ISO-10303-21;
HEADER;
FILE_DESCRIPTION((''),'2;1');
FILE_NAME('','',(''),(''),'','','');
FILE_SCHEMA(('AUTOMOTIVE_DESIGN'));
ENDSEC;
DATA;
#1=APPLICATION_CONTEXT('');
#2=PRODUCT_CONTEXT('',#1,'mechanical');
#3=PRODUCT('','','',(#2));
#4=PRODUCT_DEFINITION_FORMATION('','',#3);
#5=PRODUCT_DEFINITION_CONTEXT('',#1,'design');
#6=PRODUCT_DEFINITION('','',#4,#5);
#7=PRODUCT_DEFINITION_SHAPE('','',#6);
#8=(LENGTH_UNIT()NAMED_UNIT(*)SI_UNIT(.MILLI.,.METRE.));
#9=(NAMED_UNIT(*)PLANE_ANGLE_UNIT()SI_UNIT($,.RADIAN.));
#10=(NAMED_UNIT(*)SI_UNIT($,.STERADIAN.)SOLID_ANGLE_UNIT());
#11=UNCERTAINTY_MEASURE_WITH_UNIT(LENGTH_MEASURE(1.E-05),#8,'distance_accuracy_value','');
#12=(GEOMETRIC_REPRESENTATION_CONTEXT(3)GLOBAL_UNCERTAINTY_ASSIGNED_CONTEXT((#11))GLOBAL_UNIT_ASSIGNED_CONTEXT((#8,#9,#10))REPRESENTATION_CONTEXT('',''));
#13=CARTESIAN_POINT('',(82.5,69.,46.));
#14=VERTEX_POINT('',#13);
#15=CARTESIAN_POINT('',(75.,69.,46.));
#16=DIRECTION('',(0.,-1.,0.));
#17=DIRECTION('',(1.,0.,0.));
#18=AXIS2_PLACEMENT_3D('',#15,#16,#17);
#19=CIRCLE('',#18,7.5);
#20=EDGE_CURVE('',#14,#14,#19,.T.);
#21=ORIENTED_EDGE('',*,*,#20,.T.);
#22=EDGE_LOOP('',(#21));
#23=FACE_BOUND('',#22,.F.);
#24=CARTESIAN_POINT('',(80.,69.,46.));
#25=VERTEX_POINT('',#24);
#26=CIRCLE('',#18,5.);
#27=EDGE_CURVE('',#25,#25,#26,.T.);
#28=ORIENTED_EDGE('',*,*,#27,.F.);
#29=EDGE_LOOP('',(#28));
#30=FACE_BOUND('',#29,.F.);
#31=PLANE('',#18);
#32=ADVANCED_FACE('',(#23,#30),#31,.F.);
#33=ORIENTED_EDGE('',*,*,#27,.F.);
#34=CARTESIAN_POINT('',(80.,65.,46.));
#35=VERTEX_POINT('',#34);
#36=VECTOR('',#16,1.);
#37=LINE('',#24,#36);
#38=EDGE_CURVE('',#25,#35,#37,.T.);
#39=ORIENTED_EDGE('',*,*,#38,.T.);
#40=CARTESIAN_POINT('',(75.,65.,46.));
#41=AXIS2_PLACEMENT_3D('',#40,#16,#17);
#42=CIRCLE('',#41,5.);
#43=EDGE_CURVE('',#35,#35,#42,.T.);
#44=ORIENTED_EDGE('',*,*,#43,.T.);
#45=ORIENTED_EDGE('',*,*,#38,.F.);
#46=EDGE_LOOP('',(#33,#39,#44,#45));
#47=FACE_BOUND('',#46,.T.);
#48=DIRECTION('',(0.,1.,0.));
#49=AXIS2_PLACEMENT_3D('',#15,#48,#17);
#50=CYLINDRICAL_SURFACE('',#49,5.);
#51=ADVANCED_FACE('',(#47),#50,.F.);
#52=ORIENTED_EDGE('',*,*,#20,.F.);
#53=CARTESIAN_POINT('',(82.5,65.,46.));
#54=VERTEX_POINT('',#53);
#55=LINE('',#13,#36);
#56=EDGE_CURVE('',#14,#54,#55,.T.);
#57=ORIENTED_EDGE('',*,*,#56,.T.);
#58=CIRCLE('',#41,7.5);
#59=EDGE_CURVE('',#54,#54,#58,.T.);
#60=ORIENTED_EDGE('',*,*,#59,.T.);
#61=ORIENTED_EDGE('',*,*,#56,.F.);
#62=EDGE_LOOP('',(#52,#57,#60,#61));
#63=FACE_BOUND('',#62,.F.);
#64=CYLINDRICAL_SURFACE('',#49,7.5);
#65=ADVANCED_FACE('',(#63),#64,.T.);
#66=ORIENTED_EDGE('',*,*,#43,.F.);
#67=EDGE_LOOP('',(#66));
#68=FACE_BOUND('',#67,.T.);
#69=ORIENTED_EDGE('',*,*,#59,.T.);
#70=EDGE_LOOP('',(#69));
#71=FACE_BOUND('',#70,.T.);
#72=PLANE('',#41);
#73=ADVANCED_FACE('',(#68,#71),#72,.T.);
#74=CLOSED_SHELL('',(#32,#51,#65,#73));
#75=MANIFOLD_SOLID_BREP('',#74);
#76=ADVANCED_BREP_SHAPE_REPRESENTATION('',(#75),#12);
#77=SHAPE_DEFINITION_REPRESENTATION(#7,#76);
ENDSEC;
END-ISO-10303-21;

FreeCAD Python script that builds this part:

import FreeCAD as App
import Part
import Sketcher

V = App.Vector

doc = App.newDocument("Part")
body = doc.addObject("PartDesign::Body", "Body")

sketch1 = body.newObject("Sketcher::SketchObject", "Sketch")
sketch1.AttachmentSupport = (doc.getObject("XZ_Plane"), [""])
sketch1.MapMode = "FlatFace"
sketch1.AttachmentOffset = App.Placement(V(0, 0, -69), App.Rotation())
sketch1.addGeometry(Part.Circle(V(75, 46, 0), V(0, 0, 1), 5), False)
sketch1.addConstraint(Sketcher.Constraint("Diameter", 0, 10.0))
sketch1.addConstraint(Sketcher.Constraint("DistanceX", -1, 1, 0, 3, 75.0))
sketch1.addConstraint(Sketcher.Constraint("DistanceY", -1, 1, 0, 3, 46.0))
pad1 = body.newObject("PartDesign::Pad", "Pad")
pad1.Profile = sketch1
pad1.Length = 4
body2 = doc.addObject("PartDesign::Body", "Body001")

sketch2 = body2.newObject("Sketcher::SketchObject", "Sketch001")
sketch2.AttachmentSupport = (doc.getObject("XZ_Plane001"), [""])
sketch2.MapMode = "FlatFace"
sketch2.AttachmentOffset = App.Placement(V(0, 0, -69), App.Rotation())
sketch2.addGeometry(Part.Circle(V(75, 46, 0), V(0, 0, 1), 8), False)
sketch2.addConstraint(Sketcher.Constraint("Diameter", 0, 15.0))
sketch2.addConstraint(Sketcher.Constraint("DistanceX", -1, 1, 0, 3, 75.0))
sketch2.addConstraint(Sketcher.Constraint("DistanceY", -1, 1, 0, 3, 46.0))
pad2 = body2.newObject("PartDesign::Pad", "Pad001")
pad2.Profile = sketch2
pad2.Length = 4
doc.recompute()

boolean = body2.newObject("PartDesign::Boolean", "Boolean")
boolean.Type = "Cut"
boolean.addObjects([body])

doc.recompute()
